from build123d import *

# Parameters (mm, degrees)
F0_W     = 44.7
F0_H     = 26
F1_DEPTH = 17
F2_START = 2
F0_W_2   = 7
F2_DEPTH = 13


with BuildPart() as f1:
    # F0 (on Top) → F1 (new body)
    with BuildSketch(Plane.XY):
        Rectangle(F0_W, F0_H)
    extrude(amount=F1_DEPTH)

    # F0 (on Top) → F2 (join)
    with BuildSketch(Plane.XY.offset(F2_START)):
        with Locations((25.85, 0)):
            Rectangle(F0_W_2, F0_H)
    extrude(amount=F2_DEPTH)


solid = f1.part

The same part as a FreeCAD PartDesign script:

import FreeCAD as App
import Part
import Sketcher
Q = App.Units.Quantity


def add_polygon(sketch, points):
    """Adds a closed chain of lines whose ends are joined by coincident constraints."""
    first, n = sketch.GeometryCount, len(points)
    for a, b in zip(points, points[1:] + points[:1]):
        sketch.addGeometry(Part.LineSegment(App.Vector(*a, 0), App.Vector(*b, 0)), False)
    for i in range(n):
        sketch.addConstraint(Sketcher.Constraint("Coincident", first + i, 2, first + (i + 1) % n, 1))

doc = App.newDocument("Part")
body = doc.addObject("PartDesign::Body", "Body")

# Sketch on XY plane
sketch1 = body.newObject("Sketcher::SketchObject", "Sketch")
sketch1.AttachmentSupport = (doc.getObject("XY_Plane"), [""])
sketch1.MapMode = "FlatFace"
add_polygon(sketch1, [(-22.35, 13), (-22.35, -13), (22.35, -13), (22.35, 13)])  # lines 0-3
sketch1.addConstraint([
    Sketcher.Constraint("Vertical", 0),
    Sketcher.Constraint("Horizontal", 1),
    Sketcher.Constraint("Vertical", 2),
    Sketcher.Constraint("Horizontal", 3),
    Sketcher.Constraint("Symmetric", 0, 2, 2, 2, -1, 1),
    Sketcher.Constraint("DistanceY", 0, 2, 0, 1, Q("26 mm")),
    Sketcher.Constraint("DistanceX", 1, 1, 1, 2, Q("44.7 mm")),
])
pad1 = body.newObject("PartDesign::Pad", "Pad")
pad1.Profile = sketch1
pad1.Length = 17

# Sketch on XY plane
sketch2 = body.newObject("Sketcher::SketchObject", "Sketch001")
sketch2.AttachmentSupport = (doc.getObject("XY_Plane"), [""])
sketch2.MapMode = "FlatFace"
sketch2.AttachmentOffset = App.Placement(App.Vector(0, 0, 2), App.Rotation())
add_polygon(sketch2, [(22.35, 13), (22.35, -13), (29.35, -13), (29.35, 13)])  # lines 0-3
sketch2.addConstraint([
    Sketcher.Constraint("Vertical", 0),
    Sketcher.Constraint("Horizontal", 1),
    Sketcher.Constraint("Vertical", 2),
    Sketcher.Constraint("Horizontal", 3),
    Sketcher.Constraint("DistanceX", 1, 1, 1, 2, Q("7 mm")),
    Sketcher.Constraint("DistanceY", 0, 2, 0, 1, Q("26 mm")),
    Sketcher.Constraint("DistanceY", 0, 2, -1, 1, Q("13 mm")),
    Sketcher.Constraint("DistanceX", -1, 1, 0, 2, Q("22.35 mm")),
])
pad2 = body.newObject("PartDesign::Pad", "Pad001")
pad2.Profile = sketch2
pad2.Length = 13

doc.recompute()
